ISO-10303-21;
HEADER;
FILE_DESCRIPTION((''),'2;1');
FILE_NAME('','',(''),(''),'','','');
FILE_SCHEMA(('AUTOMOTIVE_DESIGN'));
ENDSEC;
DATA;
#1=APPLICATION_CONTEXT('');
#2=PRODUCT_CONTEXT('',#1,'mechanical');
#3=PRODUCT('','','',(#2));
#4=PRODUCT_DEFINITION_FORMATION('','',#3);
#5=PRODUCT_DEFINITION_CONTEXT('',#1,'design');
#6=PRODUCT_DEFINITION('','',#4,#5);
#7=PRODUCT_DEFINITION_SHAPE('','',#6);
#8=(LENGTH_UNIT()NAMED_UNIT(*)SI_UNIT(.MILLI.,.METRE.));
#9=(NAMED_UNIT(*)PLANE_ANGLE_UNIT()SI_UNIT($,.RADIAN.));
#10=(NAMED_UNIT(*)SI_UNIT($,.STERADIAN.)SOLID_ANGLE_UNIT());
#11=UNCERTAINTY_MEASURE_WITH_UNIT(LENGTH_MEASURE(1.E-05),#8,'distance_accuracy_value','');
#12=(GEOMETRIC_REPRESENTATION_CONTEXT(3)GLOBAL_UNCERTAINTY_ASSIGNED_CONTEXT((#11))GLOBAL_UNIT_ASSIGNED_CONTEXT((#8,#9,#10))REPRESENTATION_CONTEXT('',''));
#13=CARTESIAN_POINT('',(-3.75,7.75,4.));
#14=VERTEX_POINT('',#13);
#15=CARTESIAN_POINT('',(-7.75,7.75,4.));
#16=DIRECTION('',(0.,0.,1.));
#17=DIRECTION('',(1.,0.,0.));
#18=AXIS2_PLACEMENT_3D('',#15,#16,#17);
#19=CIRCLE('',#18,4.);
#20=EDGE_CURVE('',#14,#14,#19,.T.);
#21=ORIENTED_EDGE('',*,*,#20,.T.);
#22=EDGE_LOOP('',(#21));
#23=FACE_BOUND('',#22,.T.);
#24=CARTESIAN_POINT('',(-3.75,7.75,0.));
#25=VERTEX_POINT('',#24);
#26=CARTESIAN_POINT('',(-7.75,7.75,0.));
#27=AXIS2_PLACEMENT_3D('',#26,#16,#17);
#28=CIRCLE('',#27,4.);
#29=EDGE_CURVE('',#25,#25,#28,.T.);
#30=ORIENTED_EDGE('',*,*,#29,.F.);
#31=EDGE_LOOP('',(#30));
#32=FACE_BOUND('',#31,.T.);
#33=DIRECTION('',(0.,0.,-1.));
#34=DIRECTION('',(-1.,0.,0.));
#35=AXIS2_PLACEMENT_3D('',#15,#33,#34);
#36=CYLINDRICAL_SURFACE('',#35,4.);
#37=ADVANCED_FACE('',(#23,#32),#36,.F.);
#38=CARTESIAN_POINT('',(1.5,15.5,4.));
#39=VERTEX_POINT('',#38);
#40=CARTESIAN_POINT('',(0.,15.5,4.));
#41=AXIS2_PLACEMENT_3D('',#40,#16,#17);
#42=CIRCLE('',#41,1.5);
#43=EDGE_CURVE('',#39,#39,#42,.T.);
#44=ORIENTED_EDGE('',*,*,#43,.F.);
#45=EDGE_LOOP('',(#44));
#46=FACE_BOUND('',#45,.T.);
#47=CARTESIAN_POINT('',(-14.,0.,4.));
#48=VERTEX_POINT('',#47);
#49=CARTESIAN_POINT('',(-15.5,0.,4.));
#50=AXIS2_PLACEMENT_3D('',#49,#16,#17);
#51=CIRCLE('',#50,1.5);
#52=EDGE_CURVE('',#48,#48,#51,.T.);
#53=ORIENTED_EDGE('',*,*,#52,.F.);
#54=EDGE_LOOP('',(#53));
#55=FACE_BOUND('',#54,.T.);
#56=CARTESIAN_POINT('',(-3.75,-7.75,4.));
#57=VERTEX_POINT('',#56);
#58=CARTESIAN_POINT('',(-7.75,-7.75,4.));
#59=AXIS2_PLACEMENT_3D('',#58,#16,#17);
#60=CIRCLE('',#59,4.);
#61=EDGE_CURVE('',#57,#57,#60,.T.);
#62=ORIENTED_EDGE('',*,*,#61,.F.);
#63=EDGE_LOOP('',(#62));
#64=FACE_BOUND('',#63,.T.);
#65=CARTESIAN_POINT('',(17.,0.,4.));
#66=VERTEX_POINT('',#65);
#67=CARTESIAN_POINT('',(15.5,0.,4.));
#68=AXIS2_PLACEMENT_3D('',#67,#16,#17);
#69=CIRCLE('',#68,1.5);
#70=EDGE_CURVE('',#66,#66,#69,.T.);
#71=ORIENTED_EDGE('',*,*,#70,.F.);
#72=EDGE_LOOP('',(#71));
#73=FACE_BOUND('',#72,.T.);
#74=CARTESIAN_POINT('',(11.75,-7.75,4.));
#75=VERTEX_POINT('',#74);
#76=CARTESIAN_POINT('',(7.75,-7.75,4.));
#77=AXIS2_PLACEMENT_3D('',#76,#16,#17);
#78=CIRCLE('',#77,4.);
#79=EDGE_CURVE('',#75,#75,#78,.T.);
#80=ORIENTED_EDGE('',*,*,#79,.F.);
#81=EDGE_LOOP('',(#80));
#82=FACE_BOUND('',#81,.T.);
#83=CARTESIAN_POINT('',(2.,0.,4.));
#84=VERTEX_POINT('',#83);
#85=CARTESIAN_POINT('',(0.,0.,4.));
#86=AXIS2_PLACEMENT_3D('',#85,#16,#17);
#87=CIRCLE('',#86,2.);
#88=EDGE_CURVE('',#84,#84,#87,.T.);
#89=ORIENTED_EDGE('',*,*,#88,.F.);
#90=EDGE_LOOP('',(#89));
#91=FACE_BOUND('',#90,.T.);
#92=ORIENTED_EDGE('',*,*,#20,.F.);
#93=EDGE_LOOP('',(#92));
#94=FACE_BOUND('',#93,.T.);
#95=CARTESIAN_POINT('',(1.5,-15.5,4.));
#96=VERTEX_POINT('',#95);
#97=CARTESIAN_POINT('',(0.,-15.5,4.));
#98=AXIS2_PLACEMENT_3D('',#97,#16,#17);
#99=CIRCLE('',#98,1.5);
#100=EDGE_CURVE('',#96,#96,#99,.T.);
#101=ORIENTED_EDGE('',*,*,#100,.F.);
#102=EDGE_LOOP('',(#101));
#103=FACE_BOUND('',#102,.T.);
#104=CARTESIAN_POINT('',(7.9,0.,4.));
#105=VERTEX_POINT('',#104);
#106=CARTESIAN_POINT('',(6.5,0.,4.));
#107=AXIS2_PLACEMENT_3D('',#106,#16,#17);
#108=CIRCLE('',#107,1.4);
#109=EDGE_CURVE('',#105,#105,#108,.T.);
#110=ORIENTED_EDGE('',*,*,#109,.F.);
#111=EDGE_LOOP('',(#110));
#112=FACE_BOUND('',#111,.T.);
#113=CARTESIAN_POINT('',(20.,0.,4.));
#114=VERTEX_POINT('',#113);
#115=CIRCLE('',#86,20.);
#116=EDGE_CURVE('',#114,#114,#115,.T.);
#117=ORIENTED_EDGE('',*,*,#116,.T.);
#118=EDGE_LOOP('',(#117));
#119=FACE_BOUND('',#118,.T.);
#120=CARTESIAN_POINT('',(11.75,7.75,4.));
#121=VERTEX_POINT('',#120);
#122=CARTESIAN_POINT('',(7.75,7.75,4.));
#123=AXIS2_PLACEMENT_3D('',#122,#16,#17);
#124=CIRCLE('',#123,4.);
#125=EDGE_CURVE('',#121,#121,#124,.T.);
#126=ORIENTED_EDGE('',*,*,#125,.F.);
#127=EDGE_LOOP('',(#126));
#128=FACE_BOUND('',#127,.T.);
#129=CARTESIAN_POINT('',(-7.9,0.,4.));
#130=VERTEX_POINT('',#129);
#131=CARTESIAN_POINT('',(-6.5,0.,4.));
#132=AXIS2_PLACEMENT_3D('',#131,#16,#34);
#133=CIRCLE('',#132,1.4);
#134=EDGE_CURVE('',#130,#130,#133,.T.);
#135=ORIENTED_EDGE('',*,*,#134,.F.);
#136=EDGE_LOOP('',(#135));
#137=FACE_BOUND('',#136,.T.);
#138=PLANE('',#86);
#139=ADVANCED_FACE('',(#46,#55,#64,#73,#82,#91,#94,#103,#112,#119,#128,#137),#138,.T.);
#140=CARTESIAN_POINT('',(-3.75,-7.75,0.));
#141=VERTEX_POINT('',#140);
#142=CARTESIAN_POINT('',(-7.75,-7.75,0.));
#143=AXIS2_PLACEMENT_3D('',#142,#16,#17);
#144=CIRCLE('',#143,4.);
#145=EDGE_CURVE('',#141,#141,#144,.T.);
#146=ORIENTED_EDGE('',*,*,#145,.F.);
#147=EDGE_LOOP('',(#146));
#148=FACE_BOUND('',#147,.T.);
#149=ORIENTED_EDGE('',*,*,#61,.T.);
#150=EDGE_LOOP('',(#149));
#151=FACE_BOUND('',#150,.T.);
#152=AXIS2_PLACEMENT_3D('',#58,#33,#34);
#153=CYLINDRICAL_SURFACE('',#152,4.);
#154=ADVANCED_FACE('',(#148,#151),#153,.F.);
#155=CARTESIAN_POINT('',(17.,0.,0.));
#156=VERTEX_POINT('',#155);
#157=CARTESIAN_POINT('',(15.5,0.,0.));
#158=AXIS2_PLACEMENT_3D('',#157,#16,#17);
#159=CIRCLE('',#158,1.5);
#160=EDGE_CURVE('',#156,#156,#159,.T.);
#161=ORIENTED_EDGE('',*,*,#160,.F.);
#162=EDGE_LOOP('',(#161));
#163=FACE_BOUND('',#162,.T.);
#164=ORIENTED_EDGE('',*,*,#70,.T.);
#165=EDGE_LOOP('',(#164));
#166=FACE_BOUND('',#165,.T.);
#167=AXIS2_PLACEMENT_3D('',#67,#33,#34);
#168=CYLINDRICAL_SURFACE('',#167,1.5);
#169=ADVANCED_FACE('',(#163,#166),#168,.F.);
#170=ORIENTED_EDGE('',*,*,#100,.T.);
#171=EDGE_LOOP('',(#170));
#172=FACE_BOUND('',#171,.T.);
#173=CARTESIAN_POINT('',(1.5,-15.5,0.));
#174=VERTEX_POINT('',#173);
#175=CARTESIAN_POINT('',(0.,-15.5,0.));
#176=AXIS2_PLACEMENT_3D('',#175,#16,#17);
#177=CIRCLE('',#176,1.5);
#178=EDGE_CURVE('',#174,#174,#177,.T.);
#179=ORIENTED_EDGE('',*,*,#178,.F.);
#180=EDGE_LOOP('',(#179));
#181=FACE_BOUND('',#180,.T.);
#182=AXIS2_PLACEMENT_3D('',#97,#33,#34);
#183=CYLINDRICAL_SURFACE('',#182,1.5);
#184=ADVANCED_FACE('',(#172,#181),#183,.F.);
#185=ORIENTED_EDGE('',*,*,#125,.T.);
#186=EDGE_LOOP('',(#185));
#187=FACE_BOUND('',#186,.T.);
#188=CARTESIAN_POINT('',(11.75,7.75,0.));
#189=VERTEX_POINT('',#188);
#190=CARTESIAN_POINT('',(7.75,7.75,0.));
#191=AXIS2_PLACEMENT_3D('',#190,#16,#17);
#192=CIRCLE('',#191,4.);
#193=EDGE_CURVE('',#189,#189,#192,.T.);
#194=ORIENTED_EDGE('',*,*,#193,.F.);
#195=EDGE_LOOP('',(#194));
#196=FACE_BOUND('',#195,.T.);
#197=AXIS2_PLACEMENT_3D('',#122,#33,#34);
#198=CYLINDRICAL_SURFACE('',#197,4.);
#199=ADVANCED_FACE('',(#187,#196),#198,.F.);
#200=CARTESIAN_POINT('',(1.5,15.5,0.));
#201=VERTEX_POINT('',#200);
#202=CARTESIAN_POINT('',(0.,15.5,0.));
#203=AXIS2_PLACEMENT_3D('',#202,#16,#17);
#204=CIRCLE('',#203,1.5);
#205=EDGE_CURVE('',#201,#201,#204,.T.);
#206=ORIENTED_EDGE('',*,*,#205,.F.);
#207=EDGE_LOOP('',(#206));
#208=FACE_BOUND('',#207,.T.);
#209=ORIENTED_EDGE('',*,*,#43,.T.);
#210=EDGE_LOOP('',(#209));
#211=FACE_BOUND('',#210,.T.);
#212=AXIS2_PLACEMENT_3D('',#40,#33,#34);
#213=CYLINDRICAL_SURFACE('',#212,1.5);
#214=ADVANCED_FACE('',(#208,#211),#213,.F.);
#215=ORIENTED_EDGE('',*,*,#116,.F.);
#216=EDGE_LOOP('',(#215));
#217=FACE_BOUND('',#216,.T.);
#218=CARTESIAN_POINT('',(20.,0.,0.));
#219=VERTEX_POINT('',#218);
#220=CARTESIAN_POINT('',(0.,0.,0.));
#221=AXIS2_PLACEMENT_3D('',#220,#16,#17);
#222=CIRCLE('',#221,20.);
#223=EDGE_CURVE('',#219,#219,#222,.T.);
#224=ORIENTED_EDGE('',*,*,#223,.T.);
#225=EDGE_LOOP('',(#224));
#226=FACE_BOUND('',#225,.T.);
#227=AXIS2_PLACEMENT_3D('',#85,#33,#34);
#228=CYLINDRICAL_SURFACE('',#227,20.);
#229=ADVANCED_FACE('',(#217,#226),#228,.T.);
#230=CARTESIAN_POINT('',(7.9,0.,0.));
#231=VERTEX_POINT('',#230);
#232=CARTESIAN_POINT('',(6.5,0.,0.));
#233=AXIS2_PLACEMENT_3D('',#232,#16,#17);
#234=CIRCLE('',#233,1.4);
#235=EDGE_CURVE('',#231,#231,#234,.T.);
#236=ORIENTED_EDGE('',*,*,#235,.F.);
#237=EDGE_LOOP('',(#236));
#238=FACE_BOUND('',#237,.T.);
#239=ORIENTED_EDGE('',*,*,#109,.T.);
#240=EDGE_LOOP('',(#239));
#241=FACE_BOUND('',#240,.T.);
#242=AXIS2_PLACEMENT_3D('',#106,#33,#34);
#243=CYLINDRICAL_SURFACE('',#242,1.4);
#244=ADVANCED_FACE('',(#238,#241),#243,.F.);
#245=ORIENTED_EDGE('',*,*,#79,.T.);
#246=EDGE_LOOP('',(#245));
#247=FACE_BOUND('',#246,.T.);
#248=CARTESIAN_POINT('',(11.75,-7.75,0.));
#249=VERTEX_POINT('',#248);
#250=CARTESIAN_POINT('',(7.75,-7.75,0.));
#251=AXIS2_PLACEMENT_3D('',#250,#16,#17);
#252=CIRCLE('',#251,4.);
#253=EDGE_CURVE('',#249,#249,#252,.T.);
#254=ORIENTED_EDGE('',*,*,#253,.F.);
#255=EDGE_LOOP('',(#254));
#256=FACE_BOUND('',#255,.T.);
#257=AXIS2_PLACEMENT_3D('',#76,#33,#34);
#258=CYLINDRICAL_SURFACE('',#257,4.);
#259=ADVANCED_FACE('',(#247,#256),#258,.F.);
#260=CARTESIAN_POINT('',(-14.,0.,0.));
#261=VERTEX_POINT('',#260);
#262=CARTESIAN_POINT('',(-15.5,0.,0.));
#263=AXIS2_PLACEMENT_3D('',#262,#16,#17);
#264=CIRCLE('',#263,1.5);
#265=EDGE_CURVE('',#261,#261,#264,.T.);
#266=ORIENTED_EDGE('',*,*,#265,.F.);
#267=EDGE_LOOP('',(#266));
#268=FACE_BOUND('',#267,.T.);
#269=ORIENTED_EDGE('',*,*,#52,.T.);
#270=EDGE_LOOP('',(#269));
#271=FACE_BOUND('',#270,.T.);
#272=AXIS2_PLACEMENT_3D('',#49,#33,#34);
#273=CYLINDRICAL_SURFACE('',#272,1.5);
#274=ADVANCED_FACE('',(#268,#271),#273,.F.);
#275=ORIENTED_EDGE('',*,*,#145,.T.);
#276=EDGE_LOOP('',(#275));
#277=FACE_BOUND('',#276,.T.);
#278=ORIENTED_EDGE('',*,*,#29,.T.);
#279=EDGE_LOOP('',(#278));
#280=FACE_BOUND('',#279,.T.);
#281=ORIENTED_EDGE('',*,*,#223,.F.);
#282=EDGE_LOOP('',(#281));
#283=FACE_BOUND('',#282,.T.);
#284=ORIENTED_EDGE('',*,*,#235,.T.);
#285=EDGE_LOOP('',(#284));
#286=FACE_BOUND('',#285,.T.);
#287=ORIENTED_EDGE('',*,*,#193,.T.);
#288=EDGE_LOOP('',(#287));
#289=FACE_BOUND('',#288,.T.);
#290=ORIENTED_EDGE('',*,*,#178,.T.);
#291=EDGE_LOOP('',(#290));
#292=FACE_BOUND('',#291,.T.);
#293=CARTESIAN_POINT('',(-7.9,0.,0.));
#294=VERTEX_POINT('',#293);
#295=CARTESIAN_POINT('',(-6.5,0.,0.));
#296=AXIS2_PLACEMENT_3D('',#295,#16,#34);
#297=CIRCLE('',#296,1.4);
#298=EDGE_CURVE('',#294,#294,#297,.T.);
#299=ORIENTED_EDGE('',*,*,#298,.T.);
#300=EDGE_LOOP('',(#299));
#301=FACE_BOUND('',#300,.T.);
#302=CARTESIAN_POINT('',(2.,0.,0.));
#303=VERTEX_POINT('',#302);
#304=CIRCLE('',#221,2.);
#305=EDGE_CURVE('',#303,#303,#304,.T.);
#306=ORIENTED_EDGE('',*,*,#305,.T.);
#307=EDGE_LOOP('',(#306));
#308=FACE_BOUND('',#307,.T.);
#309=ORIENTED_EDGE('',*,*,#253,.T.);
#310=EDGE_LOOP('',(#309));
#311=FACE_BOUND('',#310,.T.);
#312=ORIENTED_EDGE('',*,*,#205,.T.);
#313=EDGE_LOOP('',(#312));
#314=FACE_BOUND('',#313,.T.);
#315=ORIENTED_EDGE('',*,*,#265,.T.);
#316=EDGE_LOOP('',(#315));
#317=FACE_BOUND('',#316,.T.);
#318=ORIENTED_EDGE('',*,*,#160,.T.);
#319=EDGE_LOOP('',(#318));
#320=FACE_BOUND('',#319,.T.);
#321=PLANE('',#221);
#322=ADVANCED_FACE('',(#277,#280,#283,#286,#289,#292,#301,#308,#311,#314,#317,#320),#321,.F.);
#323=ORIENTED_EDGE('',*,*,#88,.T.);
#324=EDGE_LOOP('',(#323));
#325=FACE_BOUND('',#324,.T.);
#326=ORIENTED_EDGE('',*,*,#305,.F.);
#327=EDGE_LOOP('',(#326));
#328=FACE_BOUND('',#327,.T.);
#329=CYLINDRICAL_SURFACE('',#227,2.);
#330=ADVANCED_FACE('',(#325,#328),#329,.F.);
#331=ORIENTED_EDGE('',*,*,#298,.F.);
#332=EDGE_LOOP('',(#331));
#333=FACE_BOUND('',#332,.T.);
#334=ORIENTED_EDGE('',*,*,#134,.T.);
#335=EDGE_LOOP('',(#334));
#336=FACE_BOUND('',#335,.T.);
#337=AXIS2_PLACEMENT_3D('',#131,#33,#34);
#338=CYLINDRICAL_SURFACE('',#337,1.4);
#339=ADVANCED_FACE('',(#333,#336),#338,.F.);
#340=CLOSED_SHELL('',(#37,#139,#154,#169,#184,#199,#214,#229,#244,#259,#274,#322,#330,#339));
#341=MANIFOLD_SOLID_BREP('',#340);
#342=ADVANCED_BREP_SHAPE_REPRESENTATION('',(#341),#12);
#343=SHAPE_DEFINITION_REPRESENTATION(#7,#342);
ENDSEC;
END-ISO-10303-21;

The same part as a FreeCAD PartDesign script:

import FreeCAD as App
import Part
import Sketcher
Q = App.Units.Quantity

doc = App.newDocument("Part")
body = doc.addObject("PartDesign::Body", "Body")

# Sketch on XY plane
sketch1 = body.newObject("Sketcher::SketchObject", "Sketch")
sketch1.AttachmentSupport = (doc.getObject("XY_Plane"), [""])
sketch1.MapMode = "FlatFace"
sketch1.addGeometry(Part.Circle(App.Vector(0, 0, 0), App.Vector(0, 0, 1), 20), False)
sketch1.addGeometry(Part.Circle(App.Vector(-7.8, -7.8, 0), App.Vector(0, 0, 1), 4), False)
sketch1.addGeometry(Part.Circle(App.Vector(0, -15.5, 0), App.Vector(0, 0, 1), 1.5), False)
sketch1.addGeometry(Part.Circle(App.Vector(7.8, -7.8, 0), App.Vector(0, 0, 1), 4), False)
sketch1.addGeometry(Part.Circle(App.Vector(-15.5, 0, 0), App.Vector(0, 0, 1), 1.5), False)
sketch1.addGeometry(Part.Circle(App.Vector(-6.5, 0, 0), App.Vector(0, 0, 1), 1.4), False)
sketch1.addGeometry(Part.Circle(App.Vector(-7.8, 7.8, 0), App.Vector(0, 0, 1), 4), False)
sketch1.addGeometry(Part.Circle(App.Vector(0, 0, 0), App.Vector(0, 0, 1), 2), False)
sketch1.addGeometry(Part.Circle(App.Vector(6.5, 0, 0), App.Vector(0, 0, 1), 1.4), False)
sketch1.addGeometry(Part.Circle(App.Vector(7.8, 7.8, 0), App.Vector(0, 0, 1), 4), False)
sketch1.addGeometry(Part.Circle(App.Vector(15.5, 0, 0), App.Vector(0, 0, 1), 1.5), False)
sketch1.addGeometry(Part.Circle(App.Vector(0, 15.5, 0), App.Vector(0, 0, 1), 1.5), False)
sketch1.addConstraint(Sketcher.Constraint("Coincident", 0, 3, -1, 1))
sketch1.addConstraint(Sketcher.Constraint("Coincident", 7, 3, -1, 1))
sketch1.addConstraint(Sketcher.Constraint("Equal", 1, 3))
sketch1.addConstraint(Sketcher.Constraint("Equal", 2, 4))
sketch1.addConstraint(Sketcher.Constraint("Equal", 3, 6))
sketch1.addConstraint(Sketcher.Constraint("Equal", 5, 8))
sketch1.addConstraint(Sketcher.Constraint("Equal", 6, 9))
sketch1.addConstraint(Sketcher.Constraint("Equal", 4, 10))
sketch1.addConstraint(Sketcher.Constraint("Equal", 10, 11))
sketch1.addConstraint(Sketcher.Constraint("Symmetric", 3, 3, 6, 3, -1, 1))
sketch1.addConstraint(Sketcher.Constraint("Symmetric", 5, 3, 8, 3, -1, 1))
sketch1.addConstraint(Sketcher.Constraint("Symmetric", 1, 3, 9, 3, -1, 1))
sketch1.addConstraint(Sketcher.Constraint("Symmetric", 4, 3, 10, 3, -1, 1))
sketch1.addConstraint(Sketcher.Constraint("Symmetric", 2, 3, 11, 3, -1, 1))
sketch1.addConstraint(Sketcher.Constraint("Symmetric", 1, 3, 3, 3, -2))
sketch1.addConstraint(Sketcher.Constraint("PointOnObject", 2, 3, -2))
sketch1.addConstraint(Sketcher.Constraint("PointOnObject", 4, 3, -1))
sketch1.addConstraint(Sketcher.Constraint("PointOnObject", 5, 3, -1))
sketch1.addConstraint(Sketcher.Constraint("Diameter", 0, Q("40 mm")))
sketch1.addConstraint(Sketcher.Constraint("Diameter", 1, Q("8 mm")))
sketch1.addConstraint(Sketcher.Constraint("Diameter", 2, Q("3 mm")))
sketch1.addConstraint(Sketcher.Constraint("Diameter", 7, Q("4 mm")))
sketch1.addConstraint(Sketcher.Constraint("Diameter", 5, Q("2.8 mm")))
sketch1.addConstraint(Sketcher.Constraint("DistanceX", 4, 3, 5, 3, Q("9 mm")))
sketch1.addConstraint(Sketcher.Constraint("DistanceX", 5, 3, 8, 3, Q("13 mm")))
sketch1.addConstraint(Sketcher.Constraint("DistanceY", 2, 3, -1, 1, Q("15.5 mm")))
sketch1.addConstraint(Sketcher.Constraint("DistanceX", 1, 3, 3, 3, Q("15.5 mm")))
sketch1.addConstraint(Sketcher.Constraint("DistanceY", 1, 3, 6, 3, Q("15.5 mm")))
pad1 = body.newObject("PartDesign::Pad", "Pad")
pad1.Profile = sketch1
pad1.Length = 4

doc.recompute()
